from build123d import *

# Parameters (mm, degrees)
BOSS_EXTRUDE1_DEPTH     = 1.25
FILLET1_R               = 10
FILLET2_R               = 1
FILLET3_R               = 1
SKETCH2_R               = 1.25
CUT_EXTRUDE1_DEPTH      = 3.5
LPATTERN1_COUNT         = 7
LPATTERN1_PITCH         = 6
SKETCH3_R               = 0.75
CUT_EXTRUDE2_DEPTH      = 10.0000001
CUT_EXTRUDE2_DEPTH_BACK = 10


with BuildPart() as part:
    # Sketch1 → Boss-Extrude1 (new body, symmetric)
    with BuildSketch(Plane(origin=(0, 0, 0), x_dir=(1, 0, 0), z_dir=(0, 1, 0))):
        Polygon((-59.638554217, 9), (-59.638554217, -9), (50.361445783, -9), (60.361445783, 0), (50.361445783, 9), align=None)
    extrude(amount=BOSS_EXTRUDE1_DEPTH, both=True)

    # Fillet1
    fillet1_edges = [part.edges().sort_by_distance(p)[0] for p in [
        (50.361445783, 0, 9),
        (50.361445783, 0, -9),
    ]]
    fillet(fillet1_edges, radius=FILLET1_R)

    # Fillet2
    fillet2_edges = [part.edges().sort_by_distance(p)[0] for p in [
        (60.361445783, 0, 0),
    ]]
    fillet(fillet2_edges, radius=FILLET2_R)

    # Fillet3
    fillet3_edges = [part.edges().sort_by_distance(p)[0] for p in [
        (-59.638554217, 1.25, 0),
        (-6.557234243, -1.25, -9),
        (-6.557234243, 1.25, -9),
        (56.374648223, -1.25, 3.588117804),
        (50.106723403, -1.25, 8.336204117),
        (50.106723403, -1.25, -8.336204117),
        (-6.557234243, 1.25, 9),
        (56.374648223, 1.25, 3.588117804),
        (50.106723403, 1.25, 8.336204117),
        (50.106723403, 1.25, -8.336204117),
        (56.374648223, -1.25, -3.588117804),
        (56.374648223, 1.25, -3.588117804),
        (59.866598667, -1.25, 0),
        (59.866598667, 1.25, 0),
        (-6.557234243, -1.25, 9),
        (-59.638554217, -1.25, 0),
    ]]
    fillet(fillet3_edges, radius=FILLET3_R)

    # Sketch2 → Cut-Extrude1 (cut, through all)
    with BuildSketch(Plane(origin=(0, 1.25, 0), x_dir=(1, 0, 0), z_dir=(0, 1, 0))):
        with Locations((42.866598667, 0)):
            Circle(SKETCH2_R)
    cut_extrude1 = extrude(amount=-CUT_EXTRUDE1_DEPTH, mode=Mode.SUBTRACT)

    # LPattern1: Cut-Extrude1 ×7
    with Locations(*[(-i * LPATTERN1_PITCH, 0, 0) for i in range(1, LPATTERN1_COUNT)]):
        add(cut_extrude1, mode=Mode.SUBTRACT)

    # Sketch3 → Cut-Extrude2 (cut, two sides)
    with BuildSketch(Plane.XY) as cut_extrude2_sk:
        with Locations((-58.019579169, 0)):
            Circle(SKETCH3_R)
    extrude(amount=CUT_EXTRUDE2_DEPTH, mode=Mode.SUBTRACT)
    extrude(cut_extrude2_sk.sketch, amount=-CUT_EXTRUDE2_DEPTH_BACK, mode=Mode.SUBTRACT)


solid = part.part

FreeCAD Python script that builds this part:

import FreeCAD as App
import Part
import Sketcher
from FreeCAD import Vector
Q = App.Units.Quantity


def edges_at(feature, points):
    """Names of the edges that pass closest to the given points."""
    edges = feature.Shape.Edges
    near = lambda p: min(range(len(edges)), key=lambda i: edges[i].distToShape(Part.Vertex(*p))[0])
    return sorted({f"Edge{near(p) + 1}" for p in points})


def add_polygon(sketch, points):
    """Adds a closed chain of lines whose ends are joined by coincident constraints."""
    first, n = sketch.GeometryCount, len(points)
    for a, b in zip(points, points[1:] + points[:1]):
        sketch.addGeometry(Part.LineSegment(App.Vector(*a, 0), App.Vector(*b, 0)), False)
    for i in range(n):
        sketch.addConstraint(Sketcher.Constraint("Coincident", first + i, 2, first + (i + 1) % n, 1))

doc = App.newDocument("Part")
body = doc.addObject("PartDesign::Body", "Body")

# Sketch on XZ plane
sketch1 = doc.addObject("Sketcher::SketchObject", "Sketch")
body.addObject(sketch1)
sketch1.AttachmentSupport = (doc.XZ_Plane, [""])
sketch1.MapMode = "FlatFace"
add_polygon(sketch1, [(-60, -9), (-60, 9), (50, 9), (60, 0), (50, -9)])  # lines 0-4
sketch1.addConstraint([
    Sketcher.Constraint("Vertical", 0),
    Sketcher.Constraint("Horizontal", 1),
    Sketcher.Constraint("Horizontal", 4),
    Sketcher.Constraint("Symmetric", 1, 2, 3, 2, -1),
    Sketcher.Constraint("PointOnObject", 2, 2, -1),
    Sketcher.Constraint("DistanceX", 1, 1, 1, 2, Q("110 mm")),
    Sketcher.Constraint("DistanceY", 0, 1, 0, 2, Q("18 mm")),
    Sketcher.Constraint("DistanceX", 1, 2, 2, 2, Q("10 mm")),
    Sketcher.Constraint("DistanceX", 0, 2, -1, 1, Q("59.638554 mm")),
])
pad1 = doc.addObject("PartDesign::Pad", "Pad")
body.addObject(pad1)
pad1.Profile = sketch1
pad1.Length = 2.5
pad1.Midplane = True
doc.recompute()

fillet = doc.addObject("PartDesign::Fillet", "Fillet")
body.addObject(fillet)
fillet.Base = (pad1, edges_at(pad1, [(50.361, 0, 9), (50.361, 0, -9)]))
fillet.Radius = 10
doc.recompute()

fillet2 = doc.addObject("PartDesign::Fillet", "Fillet001")
body.addObject(fillet2)
fillet2.Base = (fillet, edges_at(fillet, [(60.361, 0, 0)]))
fillet2.Radius = 1
doc.recompute()

fillet3 = doc.addObject("PartDesign::Fillet", "Fillet002")
body.addObject(fillet3)
fillet3.Base = (fillet2, edges_at(fillet2, [
    (-59.639, 1.25, 0),
    (-6.557, -1.25, -9),
    (-6.557, 1.25, -9),
    (56.375, -1.25, 3.588),
    (50.107, -1.25, 8.336),
    (50.107, -1.25, -8.336),
    (-6.557, 1.25, 9),
    (56.375, 1.25, 3.588),
    (50.107, 1.25, 8.336),
    (50.107, 1.25, -8.336),
    (56.375, -1.25, -3.588),
    (56.375, 1.25, -3.588),
    (59.867, -1.25, 0),
    (59.867, 1.25, 0),
    (-6.557, -1.25, 9),
    (-59.639, -1.25, 0),
]))
fillet3.Radius = 1

# Sketch on XZ plane
sketch2 = doc.addObject("Sketcher::SketchObject", "Sketch001")
body.addObject(sketch2)
sketch2.AttachmentSupport = (doc.XZ_Plane, [""])
sketch2.MapMode = "FlatFace"
sketch2.AttachmentOffset = App.Placement(Vector(0, 0, -1.25), App.Rotation())
sketch2.addGeometry(Part.Circle(Vector(42.9, 0, 0), Vector(0, 0, 1), 1.2), False)
sketch2.addConstraint([
    Sketcher.Constraint("PointOnObject", 0, 3, -1),
    Sketcher.Constraint("Diameter", 0, Q("2.5 mm")),
    Sketcher.Constraint("DistanceX", -1, 1, 0, 3, Q("42.866599 mm")),
])
pocket1 = doc.addObject("PartDesign::Pocket", "Pocket")
body.addObject(pocket1)
pocket1.Profile = sketch2
pocket1.Type = "ThroughAll"
pocket1.Reversed = True
doc.recompute()

linearpattern = doc.addObject("PartDesign::LinearPattern", "LinearPattern")
body.addObject(linearpattern)
linearpattern.Originals = [pocket1]
linearpattern.Direction = (doc.X_Axis, [""])
linearpattern.Mode = "offset"
linearpattern.Offset = 6
linearpattern.Occurrences = 7
linearpattern.Reversed = True
body.Tip = linearpattern

# Sketch on XY plane
sketch3 = doc.addObject("Sketcher::SketchObject", "Sketch002")
body.addObject(sketch3)
sketch3.AttachmentSupport = (doc.XY_Plane, [""])
sketch3.MapMode = "FlatFace"
sketch3.addGeometry(Part.Circle(Vector(-58, 0, 0), Vector(0, 0, 1), 0.8), False)
sketch3.addConstraint([
    Sketcher.Constraint("PointOnObject", 0, 3, -1),
    Sketcher.Constraint("Diameter", 0, Q("1.5 mm")),
    Sketcher.Constraint("DistanceX", 0, 3, -1, 1, Q("58.019579 mm")),
])
pocket2 = doc.addObject("PartDesign::Pocket", "Pocket001")
body.addObject(pocket2)
pocket2.Profile = sketch3
pocket2.Type = "ThroughAll"
pocket2.Midplane = True

doc.recompute()
